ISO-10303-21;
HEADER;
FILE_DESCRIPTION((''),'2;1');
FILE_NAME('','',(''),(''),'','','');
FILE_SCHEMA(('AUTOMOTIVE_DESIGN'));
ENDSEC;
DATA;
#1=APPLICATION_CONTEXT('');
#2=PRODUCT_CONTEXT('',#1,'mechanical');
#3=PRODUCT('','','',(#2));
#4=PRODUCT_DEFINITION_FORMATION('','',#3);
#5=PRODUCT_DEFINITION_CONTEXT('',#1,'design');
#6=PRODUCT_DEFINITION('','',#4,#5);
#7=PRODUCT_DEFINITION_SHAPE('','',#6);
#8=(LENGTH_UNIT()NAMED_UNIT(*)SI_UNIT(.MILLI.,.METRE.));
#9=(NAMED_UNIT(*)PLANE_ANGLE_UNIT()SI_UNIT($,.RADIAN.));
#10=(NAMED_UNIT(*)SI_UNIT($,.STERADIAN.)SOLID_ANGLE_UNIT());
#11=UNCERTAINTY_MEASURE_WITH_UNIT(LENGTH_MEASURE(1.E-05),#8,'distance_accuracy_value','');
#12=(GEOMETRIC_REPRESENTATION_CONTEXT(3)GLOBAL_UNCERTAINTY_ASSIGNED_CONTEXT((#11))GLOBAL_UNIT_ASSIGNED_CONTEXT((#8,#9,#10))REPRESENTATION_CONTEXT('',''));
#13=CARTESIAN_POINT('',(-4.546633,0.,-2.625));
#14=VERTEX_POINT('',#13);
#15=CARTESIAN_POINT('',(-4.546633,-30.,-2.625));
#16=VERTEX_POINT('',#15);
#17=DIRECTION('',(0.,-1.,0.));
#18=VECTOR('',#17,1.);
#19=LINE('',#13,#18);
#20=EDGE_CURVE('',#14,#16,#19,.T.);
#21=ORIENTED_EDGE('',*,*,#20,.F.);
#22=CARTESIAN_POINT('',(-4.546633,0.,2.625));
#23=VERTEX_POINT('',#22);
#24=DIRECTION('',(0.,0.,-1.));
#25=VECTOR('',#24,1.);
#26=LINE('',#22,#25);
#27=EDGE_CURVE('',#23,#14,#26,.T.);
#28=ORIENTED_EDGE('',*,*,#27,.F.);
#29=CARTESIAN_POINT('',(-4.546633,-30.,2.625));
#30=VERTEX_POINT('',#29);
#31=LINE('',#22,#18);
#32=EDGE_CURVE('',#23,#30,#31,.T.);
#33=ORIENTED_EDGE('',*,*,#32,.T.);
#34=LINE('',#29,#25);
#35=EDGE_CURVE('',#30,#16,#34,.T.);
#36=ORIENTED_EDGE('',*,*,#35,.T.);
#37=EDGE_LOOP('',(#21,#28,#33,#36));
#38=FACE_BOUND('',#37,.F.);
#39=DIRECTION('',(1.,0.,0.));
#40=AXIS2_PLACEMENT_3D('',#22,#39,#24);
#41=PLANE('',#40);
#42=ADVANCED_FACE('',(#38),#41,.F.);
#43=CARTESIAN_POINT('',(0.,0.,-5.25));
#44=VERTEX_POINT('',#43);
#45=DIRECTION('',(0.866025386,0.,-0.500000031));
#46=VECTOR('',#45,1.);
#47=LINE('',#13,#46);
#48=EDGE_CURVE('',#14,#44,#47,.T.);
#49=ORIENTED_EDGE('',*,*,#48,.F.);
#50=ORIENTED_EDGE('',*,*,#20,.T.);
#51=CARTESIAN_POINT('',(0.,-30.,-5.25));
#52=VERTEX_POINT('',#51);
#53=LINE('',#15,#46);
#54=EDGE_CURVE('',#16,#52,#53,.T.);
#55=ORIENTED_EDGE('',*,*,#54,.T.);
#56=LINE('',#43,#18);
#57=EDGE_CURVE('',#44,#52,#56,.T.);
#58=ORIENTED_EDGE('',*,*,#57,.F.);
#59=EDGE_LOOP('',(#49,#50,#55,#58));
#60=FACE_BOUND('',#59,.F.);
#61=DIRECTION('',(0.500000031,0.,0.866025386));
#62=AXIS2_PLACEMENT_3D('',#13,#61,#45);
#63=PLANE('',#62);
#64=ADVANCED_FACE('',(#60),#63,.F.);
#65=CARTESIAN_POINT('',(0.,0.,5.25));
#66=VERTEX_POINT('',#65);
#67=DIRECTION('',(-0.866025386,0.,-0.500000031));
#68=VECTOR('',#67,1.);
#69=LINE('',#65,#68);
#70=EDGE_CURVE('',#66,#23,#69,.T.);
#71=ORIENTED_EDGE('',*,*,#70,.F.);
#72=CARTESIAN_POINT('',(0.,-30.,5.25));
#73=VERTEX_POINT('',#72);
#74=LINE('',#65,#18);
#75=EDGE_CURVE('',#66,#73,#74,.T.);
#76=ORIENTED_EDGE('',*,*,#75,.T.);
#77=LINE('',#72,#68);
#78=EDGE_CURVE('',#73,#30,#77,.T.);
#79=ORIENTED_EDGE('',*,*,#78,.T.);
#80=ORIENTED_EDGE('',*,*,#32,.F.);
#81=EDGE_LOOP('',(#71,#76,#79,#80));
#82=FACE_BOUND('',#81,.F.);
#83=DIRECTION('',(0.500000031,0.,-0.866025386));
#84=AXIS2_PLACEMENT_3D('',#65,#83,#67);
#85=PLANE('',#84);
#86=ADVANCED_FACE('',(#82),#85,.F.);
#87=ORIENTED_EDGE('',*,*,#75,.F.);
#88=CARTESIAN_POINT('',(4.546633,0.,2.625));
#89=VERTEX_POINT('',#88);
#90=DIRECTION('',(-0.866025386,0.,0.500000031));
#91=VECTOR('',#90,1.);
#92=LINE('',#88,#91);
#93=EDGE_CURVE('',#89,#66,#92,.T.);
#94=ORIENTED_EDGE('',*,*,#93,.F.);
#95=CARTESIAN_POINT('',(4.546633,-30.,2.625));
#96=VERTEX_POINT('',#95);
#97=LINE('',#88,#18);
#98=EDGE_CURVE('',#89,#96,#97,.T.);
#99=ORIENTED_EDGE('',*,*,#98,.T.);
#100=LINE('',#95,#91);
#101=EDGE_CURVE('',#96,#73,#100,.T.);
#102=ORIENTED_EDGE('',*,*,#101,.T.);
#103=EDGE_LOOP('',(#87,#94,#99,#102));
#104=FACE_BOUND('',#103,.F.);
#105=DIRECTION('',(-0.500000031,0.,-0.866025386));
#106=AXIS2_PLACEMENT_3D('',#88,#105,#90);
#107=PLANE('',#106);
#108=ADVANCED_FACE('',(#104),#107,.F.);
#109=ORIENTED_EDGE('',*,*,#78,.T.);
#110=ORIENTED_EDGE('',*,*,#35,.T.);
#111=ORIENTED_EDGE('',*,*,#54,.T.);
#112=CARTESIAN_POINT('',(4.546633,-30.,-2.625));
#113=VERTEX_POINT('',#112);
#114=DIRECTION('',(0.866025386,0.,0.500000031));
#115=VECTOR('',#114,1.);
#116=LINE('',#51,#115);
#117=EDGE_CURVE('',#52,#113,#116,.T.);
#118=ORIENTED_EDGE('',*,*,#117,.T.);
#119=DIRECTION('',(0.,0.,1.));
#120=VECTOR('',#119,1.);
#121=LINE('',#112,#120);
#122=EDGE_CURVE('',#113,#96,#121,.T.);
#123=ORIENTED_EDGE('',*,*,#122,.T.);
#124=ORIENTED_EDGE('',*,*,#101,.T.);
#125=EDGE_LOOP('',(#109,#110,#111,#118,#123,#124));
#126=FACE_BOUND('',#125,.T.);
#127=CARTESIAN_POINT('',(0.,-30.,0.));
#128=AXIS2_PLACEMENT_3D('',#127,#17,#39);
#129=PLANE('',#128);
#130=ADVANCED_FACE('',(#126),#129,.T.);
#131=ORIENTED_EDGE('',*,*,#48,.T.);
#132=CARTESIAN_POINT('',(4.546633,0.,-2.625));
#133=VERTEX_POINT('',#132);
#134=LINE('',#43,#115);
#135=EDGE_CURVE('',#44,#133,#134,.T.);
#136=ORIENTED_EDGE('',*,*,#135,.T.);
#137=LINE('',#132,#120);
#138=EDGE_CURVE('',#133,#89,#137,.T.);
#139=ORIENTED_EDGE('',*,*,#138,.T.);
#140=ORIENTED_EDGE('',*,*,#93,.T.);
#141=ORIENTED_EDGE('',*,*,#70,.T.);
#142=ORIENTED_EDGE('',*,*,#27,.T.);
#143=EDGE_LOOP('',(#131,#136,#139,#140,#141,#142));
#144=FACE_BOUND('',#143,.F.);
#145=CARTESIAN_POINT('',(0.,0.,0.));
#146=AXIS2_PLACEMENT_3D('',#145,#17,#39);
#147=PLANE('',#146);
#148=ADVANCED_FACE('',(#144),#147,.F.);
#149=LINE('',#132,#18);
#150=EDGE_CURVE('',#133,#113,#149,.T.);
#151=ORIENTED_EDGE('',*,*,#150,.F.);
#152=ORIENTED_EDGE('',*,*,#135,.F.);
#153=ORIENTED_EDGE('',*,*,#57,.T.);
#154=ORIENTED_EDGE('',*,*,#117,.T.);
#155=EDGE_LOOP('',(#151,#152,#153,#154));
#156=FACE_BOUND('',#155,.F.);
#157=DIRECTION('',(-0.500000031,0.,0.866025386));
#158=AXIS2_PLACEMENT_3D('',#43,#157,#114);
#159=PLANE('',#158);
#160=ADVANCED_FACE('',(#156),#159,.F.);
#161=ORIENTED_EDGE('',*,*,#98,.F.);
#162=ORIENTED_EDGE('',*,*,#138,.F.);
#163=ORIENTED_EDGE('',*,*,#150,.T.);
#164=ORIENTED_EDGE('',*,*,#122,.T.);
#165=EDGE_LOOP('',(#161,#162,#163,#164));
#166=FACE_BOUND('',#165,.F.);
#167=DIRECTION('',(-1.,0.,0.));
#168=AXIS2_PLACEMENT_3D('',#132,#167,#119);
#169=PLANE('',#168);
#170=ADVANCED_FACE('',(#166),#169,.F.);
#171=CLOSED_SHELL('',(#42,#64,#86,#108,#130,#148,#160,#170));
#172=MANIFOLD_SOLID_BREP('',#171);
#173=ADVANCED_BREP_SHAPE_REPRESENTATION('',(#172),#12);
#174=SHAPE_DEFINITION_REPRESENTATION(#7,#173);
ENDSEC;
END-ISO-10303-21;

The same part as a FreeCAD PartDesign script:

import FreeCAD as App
import Part
import Sketcher
Q = App.Units.Quantity


def add_polygon(sketch, points):
    """Adds a closed chain of lines whose ends are joined by coincident constraints."""
    first, n = sketch.GeometryCount, len(points)
    for a, b in zip(points, points[1:] + points[:1]):
        sketch.addGeometry(Part.LineSegment(App.Vector(*a, 0), App.Vector(*b, 0)), False)
    for i in range(n):
        sketch.addConstraint(Sketcher.Constraint("Coincident", first + i, 2, first + (i + 1) % n, 1))

doc = App.newDocument("Part")
params = doc.addObject("Spreadsheet::Sheet", "Params")
for row, (alias, value) in enumerate([
    ("sketch1_height", "5.25 mm"),
    ("pad1_length", "30 mm"),
], start=1):
    params.set(f"A{row}", alias)
    params.set(f"B{row}", "=" + value)
    params.setAlias(f"B{row}", alias)

body = doc.addObject("PartDesign::Body", "Body")

sketch1 = body.newObject("Sketcher::SketchObject", "Sketch")
sketch1.AttachmentSupport = (doc.getObject("XZ_Plane"), [""])
sketch1.MapMode = "FlatFace"
add_polygon(sketch1, [(5, -3), (5, 3), (0, 5), (-5, 3), (-5, -3), (0, -5)])
sketch1.addConstraint([
    Sketcher.Constraint("Vertical", 0),
    Sketcher.Constraint("Vertical", 3),
    Sketcher.Constraint("Symmetric", 0, 2, 3, 2, -1, 1),
    Sketcher.Constraint("Symmetric", 1, 2, 4, 2, -1, 1),
    Sketcher.Constraint("PointOnObject", 1, 2, -2),
    Sketcher.Constraint("Parallel", 2, 5),
    Sketcher.Constraint("Horizontal", 0, 2, 2, 2),
    Sketcher.Constraint("Angle", 1, Q("149.999998 deg")),
    Sketcher.Constraint("DistanceY", 0, 1, 0, 2, 5.25),
    Sketcher.Constraint("DistanceY", 4, 2, 1, 2, 10.5),
])
sketch1.setExpression("Constraints[14]", "Params.sketch1_height")
pad1 = body.newObject("PartDesign::Pad", "Pad")
pad1.Profile = sketch1
pad1.setExpression("Length", "Params.pad1_length")

doc.recompute()
